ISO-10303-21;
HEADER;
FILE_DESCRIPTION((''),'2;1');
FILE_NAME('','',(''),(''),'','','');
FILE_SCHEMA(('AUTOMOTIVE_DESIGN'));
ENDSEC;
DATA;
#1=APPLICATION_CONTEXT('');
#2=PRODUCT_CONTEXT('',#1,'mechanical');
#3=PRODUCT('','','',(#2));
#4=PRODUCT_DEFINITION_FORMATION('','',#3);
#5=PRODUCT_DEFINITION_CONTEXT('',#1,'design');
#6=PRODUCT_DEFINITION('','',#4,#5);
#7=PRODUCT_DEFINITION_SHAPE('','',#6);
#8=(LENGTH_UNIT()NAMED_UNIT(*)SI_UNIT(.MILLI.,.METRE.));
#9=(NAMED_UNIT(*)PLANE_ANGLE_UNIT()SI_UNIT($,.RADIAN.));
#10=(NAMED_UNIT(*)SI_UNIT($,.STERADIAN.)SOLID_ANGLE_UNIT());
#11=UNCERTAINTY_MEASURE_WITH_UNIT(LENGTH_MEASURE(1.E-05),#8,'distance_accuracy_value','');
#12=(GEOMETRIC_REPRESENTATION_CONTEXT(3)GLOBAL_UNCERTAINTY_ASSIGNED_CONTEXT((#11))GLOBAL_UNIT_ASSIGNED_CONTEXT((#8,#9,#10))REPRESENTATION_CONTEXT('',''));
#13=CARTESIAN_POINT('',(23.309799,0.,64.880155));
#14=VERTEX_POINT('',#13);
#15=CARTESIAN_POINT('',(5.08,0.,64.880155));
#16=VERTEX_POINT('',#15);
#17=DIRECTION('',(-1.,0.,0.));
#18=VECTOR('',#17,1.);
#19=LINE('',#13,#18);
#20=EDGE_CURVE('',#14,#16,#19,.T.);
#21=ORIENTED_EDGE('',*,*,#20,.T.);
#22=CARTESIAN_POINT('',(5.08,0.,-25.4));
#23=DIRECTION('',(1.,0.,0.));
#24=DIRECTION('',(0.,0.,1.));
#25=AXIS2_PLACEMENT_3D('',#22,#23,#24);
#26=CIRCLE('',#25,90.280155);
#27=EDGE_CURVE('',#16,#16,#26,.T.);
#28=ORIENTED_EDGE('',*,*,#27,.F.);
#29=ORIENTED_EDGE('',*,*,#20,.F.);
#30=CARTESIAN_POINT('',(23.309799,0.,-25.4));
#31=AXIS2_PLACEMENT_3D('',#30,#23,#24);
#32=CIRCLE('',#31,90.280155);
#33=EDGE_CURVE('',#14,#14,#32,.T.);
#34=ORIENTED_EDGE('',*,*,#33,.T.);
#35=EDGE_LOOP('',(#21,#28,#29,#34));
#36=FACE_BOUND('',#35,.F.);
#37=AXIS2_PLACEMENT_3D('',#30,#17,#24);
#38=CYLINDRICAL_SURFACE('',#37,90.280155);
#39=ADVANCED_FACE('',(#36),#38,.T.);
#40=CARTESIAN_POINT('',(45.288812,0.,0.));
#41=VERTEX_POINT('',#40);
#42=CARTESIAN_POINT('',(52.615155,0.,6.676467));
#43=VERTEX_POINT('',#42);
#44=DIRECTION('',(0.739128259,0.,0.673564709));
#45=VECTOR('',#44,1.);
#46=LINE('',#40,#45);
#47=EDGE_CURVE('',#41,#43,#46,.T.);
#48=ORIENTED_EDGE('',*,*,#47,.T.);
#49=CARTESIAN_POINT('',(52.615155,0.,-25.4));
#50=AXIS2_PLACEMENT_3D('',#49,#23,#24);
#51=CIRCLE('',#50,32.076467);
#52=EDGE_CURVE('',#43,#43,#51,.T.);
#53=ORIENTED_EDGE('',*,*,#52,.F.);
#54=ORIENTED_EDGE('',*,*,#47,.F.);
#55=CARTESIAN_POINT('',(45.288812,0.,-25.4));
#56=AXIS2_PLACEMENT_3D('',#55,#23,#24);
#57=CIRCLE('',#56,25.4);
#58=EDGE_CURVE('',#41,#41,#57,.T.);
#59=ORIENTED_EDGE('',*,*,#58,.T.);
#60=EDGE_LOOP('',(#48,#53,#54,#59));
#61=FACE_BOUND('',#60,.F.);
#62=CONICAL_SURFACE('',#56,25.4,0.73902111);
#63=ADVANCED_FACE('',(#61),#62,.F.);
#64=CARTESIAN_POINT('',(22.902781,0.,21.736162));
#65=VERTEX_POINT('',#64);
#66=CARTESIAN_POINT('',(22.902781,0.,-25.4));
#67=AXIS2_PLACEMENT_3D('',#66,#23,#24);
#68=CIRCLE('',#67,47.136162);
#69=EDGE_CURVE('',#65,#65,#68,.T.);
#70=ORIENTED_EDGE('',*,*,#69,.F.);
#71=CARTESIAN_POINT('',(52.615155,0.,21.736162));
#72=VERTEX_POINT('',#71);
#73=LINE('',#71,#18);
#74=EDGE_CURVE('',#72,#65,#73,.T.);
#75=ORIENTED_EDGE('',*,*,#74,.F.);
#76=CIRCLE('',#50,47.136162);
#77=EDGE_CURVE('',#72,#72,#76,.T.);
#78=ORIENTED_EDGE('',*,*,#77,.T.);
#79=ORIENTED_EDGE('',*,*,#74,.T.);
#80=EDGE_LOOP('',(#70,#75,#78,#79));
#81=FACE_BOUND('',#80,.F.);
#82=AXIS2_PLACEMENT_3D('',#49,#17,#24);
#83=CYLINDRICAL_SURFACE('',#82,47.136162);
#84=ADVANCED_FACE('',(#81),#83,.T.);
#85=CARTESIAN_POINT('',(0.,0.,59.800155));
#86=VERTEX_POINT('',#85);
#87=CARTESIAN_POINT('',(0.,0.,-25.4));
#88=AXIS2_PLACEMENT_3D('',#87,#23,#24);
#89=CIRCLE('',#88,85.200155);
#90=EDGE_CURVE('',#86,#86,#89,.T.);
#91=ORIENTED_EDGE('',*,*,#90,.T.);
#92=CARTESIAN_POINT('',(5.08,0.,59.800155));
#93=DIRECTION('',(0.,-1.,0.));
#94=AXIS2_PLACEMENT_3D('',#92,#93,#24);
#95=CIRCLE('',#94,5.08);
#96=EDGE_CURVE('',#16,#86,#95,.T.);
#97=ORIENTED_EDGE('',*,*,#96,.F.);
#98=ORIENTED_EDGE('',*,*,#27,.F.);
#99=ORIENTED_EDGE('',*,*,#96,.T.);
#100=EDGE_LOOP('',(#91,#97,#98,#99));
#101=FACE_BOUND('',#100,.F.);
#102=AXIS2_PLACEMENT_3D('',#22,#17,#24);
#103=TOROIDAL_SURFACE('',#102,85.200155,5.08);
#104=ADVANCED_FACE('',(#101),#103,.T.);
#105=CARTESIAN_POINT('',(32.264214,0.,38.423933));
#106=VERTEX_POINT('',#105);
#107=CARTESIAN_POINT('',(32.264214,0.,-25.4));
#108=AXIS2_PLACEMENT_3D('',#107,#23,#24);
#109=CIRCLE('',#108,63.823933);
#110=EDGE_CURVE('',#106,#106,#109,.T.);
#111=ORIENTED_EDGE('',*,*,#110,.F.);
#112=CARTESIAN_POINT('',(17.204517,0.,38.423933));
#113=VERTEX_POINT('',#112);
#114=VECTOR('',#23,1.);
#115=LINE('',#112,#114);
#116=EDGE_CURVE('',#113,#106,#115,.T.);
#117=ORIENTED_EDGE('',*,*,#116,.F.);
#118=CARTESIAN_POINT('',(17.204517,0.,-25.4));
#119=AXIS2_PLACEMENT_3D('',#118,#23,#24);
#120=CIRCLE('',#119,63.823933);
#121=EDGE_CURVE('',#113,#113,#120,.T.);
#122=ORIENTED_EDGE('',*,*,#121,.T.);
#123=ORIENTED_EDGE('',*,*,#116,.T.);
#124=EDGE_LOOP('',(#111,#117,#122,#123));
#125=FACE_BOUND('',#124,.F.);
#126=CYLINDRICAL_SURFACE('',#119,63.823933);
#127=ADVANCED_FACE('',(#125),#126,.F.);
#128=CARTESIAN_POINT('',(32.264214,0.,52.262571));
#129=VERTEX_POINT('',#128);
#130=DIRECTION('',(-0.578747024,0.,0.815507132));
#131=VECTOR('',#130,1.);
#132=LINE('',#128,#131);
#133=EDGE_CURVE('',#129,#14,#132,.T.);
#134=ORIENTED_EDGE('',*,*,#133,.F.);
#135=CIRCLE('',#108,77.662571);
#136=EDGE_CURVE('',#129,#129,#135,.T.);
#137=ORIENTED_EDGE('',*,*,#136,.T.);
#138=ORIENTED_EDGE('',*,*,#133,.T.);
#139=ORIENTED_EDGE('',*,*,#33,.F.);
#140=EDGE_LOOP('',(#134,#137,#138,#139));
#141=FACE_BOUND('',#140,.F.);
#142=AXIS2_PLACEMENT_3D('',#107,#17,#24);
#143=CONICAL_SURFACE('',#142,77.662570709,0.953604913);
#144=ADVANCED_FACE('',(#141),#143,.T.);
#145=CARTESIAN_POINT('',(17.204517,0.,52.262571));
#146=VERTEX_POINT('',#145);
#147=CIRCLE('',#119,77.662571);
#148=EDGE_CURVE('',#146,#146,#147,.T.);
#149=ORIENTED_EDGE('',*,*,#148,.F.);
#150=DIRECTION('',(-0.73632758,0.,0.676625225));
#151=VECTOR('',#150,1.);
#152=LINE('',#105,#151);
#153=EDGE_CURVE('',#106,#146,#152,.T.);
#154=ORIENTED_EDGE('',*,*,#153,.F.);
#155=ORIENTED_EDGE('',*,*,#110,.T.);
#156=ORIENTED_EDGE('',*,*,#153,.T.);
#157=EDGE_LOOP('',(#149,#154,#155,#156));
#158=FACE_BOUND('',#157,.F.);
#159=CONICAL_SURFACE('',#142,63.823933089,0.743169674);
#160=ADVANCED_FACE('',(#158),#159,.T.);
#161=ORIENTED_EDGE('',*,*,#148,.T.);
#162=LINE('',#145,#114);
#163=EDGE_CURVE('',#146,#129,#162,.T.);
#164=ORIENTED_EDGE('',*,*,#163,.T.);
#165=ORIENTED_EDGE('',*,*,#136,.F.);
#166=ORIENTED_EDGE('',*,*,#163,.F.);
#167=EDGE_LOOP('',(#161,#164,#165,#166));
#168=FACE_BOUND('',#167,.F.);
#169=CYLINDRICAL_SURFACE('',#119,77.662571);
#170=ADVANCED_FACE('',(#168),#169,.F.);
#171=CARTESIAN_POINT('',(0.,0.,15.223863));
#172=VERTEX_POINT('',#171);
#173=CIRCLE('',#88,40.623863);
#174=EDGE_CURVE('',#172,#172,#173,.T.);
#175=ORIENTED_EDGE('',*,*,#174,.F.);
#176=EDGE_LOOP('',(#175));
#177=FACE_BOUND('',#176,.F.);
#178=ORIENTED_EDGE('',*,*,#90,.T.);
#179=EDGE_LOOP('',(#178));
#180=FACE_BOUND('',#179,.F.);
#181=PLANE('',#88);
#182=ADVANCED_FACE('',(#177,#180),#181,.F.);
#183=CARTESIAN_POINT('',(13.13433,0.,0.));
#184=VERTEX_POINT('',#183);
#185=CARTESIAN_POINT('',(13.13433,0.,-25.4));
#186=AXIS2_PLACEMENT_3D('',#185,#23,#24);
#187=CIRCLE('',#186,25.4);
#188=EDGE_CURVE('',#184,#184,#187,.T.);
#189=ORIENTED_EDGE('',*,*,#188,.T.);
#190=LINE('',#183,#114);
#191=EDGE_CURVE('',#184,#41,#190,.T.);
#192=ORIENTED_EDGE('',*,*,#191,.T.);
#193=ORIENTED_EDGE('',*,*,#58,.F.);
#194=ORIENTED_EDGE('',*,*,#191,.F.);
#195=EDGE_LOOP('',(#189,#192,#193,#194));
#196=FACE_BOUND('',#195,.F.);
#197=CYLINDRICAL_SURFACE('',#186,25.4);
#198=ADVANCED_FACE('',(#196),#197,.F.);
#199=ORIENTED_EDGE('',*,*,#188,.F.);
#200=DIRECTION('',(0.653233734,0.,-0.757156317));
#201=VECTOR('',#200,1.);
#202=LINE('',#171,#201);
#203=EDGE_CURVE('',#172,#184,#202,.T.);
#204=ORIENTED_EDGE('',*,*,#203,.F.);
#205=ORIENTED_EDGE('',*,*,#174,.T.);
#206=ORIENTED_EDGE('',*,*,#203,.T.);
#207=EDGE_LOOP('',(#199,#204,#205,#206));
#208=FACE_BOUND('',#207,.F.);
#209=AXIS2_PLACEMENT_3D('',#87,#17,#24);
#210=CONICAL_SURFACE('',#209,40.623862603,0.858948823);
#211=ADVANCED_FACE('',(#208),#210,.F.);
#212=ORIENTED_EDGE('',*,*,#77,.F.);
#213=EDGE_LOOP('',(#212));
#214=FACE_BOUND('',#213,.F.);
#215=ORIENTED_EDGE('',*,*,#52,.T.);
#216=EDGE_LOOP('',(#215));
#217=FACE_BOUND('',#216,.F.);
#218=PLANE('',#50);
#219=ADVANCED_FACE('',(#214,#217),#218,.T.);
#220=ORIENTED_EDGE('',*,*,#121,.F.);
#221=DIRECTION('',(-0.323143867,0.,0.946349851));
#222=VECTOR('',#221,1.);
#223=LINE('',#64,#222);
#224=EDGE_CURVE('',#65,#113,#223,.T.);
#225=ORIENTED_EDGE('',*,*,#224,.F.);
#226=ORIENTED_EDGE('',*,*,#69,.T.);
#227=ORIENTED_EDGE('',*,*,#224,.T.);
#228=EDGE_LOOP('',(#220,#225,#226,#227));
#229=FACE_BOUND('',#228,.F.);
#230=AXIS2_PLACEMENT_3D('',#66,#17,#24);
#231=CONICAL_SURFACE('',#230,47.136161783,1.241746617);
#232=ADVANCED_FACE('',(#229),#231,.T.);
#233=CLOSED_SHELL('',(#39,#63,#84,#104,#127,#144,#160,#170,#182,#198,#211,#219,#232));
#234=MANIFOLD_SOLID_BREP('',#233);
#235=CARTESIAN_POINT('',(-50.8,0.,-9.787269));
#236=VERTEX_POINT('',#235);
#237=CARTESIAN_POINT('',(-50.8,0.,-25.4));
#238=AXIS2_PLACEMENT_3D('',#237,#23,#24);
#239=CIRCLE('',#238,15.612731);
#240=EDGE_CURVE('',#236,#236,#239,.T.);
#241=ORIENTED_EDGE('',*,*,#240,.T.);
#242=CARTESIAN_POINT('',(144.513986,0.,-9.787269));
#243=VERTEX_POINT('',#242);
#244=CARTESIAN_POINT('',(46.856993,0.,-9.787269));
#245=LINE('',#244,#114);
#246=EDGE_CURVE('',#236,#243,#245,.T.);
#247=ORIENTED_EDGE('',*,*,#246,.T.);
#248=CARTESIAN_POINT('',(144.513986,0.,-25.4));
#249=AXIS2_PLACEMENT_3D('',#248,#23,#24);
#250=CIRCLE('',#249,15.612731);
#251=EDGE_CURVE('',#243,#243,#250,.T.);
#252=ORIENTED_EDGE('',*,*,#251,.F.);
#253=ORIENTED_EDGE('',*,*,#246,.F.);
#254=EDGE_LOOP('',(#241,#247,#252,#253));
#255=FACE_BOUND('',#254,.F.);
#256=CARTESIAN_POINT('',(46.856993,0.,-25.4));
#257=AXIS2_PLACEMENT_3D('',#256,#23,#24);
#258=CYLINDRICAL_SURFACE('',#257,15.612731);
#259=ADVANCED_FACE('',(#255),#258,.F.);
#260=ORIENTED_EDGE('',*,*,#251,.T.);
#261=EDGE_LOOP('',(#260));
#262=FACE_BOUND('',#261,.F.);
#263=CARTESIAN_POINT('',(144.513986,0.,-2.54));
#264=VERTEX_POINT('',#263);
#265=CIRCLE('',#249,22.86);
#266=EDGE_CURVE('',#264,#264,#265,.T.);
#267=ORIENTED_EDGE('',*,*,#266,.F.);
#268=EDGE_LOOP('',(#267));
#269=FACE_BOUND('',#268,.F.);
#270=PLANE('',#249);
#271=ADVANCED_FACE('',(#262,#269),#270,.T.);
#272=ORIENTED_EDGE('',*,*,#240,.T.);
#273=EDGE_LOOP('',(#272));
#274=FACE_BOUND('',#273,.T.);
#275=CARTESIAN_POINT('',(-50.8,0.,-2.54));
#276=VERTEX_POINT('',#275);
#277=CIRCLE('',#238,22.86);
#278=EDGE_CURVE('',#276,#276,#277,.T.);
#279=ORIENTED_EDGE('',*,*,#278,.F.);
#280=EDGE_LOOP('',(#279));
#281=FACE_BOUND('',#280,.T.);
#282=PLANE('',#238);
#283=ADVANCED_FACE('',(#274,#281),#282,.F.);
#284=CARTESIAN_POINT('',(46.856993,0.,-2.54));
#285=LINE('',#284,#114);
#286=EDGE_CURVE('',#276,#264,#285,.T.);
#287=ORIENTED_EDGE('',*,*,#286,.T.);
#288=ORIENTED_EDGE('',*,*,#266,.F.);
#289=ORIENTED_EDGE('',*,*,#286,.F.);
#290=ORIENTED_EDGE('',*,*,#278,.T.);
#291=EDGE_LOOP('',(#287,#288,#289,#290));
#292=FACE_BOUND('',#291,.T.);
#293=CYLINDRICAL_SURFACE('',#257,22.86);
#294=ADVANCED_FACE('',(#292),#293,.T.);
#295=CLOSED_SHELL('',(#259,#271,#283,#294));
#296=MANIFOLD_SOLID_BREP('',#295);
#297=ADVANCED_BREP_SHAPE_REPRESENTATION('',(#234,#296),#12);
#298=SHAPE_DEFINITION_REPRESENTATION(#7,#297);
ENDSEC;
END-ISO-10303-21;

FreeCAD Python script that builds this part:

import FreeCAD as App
import Part
import Sketcher
Q = App.Units.Quantity


def edges_at(feature, points):
    """Names of the edges that pass closest to the given points."""
    edges = feature.Shape.Edges
    near = lambda p: min(range(len(edges)), key=lambda i: edges[i].distToShape(Part.Vertex(*p))[0])
    return sorted({f"Edge{near(p) + 1}" for p in points})

doc = App.newDocument("Part")
body = doc.addObject("PartDesign::Body", "Body")

sketch1 = body.newObject("Sketcher::SketchObject", "Sketch")
sketch1.AttachmentSupport = (doc.getObject("XZ_Plane"), [""])
sketch1.MapMode = "FlatFace"
sketch1.addGeometry(Part.LineSegment(App.Vector(0, 15.223863, 0), App.Vector(13.13433, 0, 0)), False)
sketch1.addGeometry(Part.LineSegment(App.Vector(13.13433, 0, 0), App.Vector(45.288812, 0, 0)), False)
sketch1.addGeometry(Part.LineSegment(App.Vector(45.288812, 0, 0), App.Vector(52.615155, 6.676467, 0)), False)
sketch1.addGeometry(Part.LineSegment(App.Vector(52.615155, 6.676467, 0), App.Vector(52.615155, 21.736162, 0)), False)
sketch1.addGeometry(Part.LineSegment(App.Vector(52.615155, 21.736162, 0), App.Vector(22.902781, 21.736162, 0)), False)
sketch1.addGeometry(Part.LineSegment(App.Vector(22.902781, 21.736162, 0), App.Vector(17.204517, 38.423933, 0)), False)
sketch1.addGeometry(Part.LineSegment(App.Vector(17.204517, 38.423933, 0), App.Vector(32.264214, 38.423933, 0)), False)
sketch1.addGeometry(Part.LineSegment(App.Vector(32.264214, 38.423933, 0), App.Vector(17.204517, 52.262571, 0)), False)
sketch1.addGeometry(Part.LineSegment(App.Vector(17.204517, 52.262571, 0), App.Vector(32.264214, 52.262571, 0)), False)
sketch1.addGeometry(Part.LineSegment(App.Vector(32.264214, 52.262571, 0), App.Vector(23.309799, 64.880155, 0)), False)
sketch1.addGeometry(Part.LineSegment(App.Vector(23.309799, 64.880155, 0), App.Vector(0, 64.880155, 0)), False)
sketch1.addGeometry(Part.LineSegment(App.Vector(0, 64.880155, 0), App.Vector(0, 15.223863, 0)), False)
sketch1.addGeometry(Part.LineSegment(App.Vector(0, -25.4, 0), App.Vector(52.615155, -25.4, 0)), True)
sketch1.addConstraint(Sketcher.Constraint("Coincident", 0, 2, 1, 1))
sketch1.addConstraint(Sketcher.Constraint("Coincident", 1, 2, 2, 1))
sketch1.addConstraint(Sketcher.Constraint("Coincident", 2, 2, 3, 1))
sketch1.addConstraint(Sketcher.Constraint("Coincident", 3, 2, 4, 1))
sketch1.addConstraint(Sketcher.Constraint("Coincident", 4, 2, 5, 1))
sketch1.addConstraint(Sketcher.Constraint("Coincident", 5, 2, 6, 1))
sketch1.addConstraint(Sketcher.Constraint("Coincident", 6, 2, 7, 1))
sketch1.addConstraint(Sketcher.Constraint("Coincident", 7, 2, 8, 1))
sketch1.addConstraint(Sketcher.Constraint("Coincident", 8, 2, 9, 1))
sketch1.addConstraint(Sketcher.Constraint("Coincident", 9, 2, 10, 1))
sketch1.addConstraint(Sketcher.Constraint("Coincident", 10, 2, 11, 1))
sketch1.addConstraint(Sketcher.Constraint("Coincident", 11, 2, 0, 1))
sketch1.addConstraint(Sketcher.Constraint("Horizontal", 1))
sketch1.addConstraint(Sketcher.Constraint("Vertical", 3))
sketch1.addConstraint(Sketcher.Constraint("Horizontal", 4))
sketch1.addConstraint(Sketcher.Constraint("Horizontal", 6))
sketch1.addConstraint(Sketcher.Constraint("Horizontal", 8))
sketch1.addConstraint(Sketcher.Constraint("Horizontal", 10))
sketch1.addConstraint(Sketcher.Constraint("Vertical", 11))
sketch1.addConstraint(Sketcher.Constraint("Horizontal", 12))
sketch1.addConstraint(Sketcher.Constraint("PointOnObject", 0, 2, -1))
sketch1.addConstraint(Sketcher.Constraint("PointOnObject", 10, 2, -2))
sketch1.addConstraint(Sketcher.Constraint("PointOnObject", 12, 1, -2))
sketch1.addConstraint(Sketcher.Constraint("Vertical", 5, 2, 7, 2))
sketch1.addConstraint(Sketcher.Constraint("Vertical", 6, 2, 8, 2))
sketch1.addConstraint(Sketcher.Constraint("Vertical", 3, 2, 12, 2))
sketch1.addConstraint(Sketcher.Constraint("Equal", 8, 3))
sketch1.addConstraint(Sketcher.Constraint("DistanceY", 12, 1, -1, 1, Q("1 in")))
sketch1.addConstraint(Sketcher.Constraint("DistanceX", 10, 2, 10, 1, 23.309799))
sketch1.addConstraint(Sketcher.Constraint("DistanceX", 6, 2, 1, 2, 13.024598))
sketch1.addConstraint(Sketcher.Constraint("DistanceY", 11, 2, 4, 2, 6.512299))
sketch1.addConstraint(Sketcher.Constraint("Distance", 0, 20.106631))
sketch1.addConstraint(Sketcher.Constraint("Distance", 2, 9.912139))
sketch1.addConstraint(Sketcher.Constraint("Distance", 5, 17.633829))
sketch1.addConstraint(Sketcher.Constraint("Distance", 7, 20.452441))
sketch1.addConstraint(Sketcher.Constraint("Distance", 9, 15.472071))
sketch1.addConstraint(Sketcher.Constraint("DistanceX", 1, 1, 1, 2, 32.154483))
sketch1.addConstraint(Sketcher.Constraint("DistanceX", 4, 2, 4, 1, 29.712373))
sketch1.addConstraint(Sketcher.Constraint("DistanceX", 6, 1, 6, 2, 15.059697))
sketch1.addConstraint(Sketcher.Constraint("DistanceX", 12, 1, 12, 2, 52.615155))
revolution = body.newObject("PartDesign::Revolution", "Revolution")
revolution.Profile = sketch1
revolution.ReferenceAxis = (sketch1, ["Axis0"])
revolution.Angle = 360
doc.recompute()

fillet = body.newObject("PartDesign::Fillet", "Fillet")
fillet.Base = (revolution, edges_at(revolution, [(0, 0, -115.68)]))
fillet.Radius = Q("0.2 in")
body2 = doc.addObject("PartDesign::Body", "Body001")

sketch2 = body2.newObject("Sketcher::SketchObject", "Sketch001")
sketch2.AttachmentSupport = (doc.getObject("XZ_Plane001"), [""])
sketch2.MapMode = "FlatFace"
sketch2.addGeometry(Part.LineSegment(App.Vector(-50.8, -2.54, 0), App.Vector(-50.8, -9.787269, 0)), False)
sketch2.addGeometry(Part.LineSegment(App.Vector(-50.8, -9.787269, 0), App.Vector(144.513986, -9.787269, 0)), False)
sketch2.addGeometry(Part.LineSegment(App.Vector(144.513986, -9.787269, 0), App.Vector(144.513986, -2.54, 0)), False)
sketch2.addGeometry(Part.LineSegment(App.Vector(144.513986, -2.54, 0), App.Vector(-50.8, -2.54, 0)), False)
sketch2.addGeometry(Part.LineSegment(App.Vector(-50.8, -25.4, 0), App.Vector(144.513986, -25.4, 0)), True)
sketch2.addConstraint(Sketcher.Constraint("Coincident", 0, 2, 1, 1))
sketch2.addConstraint(Sketcher.Constraint("Coincident", 1, 2, 2, 1))
sketch2.addConstraint(Sketcher.Constraint("Coincident", 2, 2, 3, 1))
sketch2.addConstraint(Sketcher.Constraint("Coincident", 3, 2, 0, 1))
sketch2.addConstraint(Sketcher.Constraint("Vertical", 0))
sketch2.addConstraint(Sketcher.Constraint("Horizontal", 1))
sketch2.addConstraint(Sketcher.Constraint("Vertical", 2))
sketch2.addConstraint(Sketcher.Constraint("Horizontal", 3))
sketch2.addConstraint(Sketcher.Constraint("Horizontal", 4))
sketch2.addConstraint(Sketcher.Constraint("Vertical", 3, 2, 4, 1))
sketch2.addConstraint(Sketcher.Constraint("Vertical", 2, 2, 4, 2))
sketch2.addConstraint(Sketcher.Constraint("DistanceX", 0, 2, -1, 1, Q("2 in")))
sketch2.addConstraint(Sketcher.Constraint("DistanceY", 4, 1, -1, 1, Q("1 in")))
sketch2.addConstraint(Sketcher.Constraint("DistanceY", 2, 2, -1, 1, Q("0.1 in")))
sketch2.addConstraint(Sketcher.Constraint("DistanceY", 0, 2, 0, 1, 7.247269))
sketch2.addConstraint(Sketcher.Constraint("DistanceX", 1, 1, 1, 2, 195.313986))
revolution2 = body2.newObject("PartDesign::Revolution", "Revolution001")
revolution2.Profile = sketch2
revolution2.ReferenceAxis = (sketch2, ["Axis0"])
revolution2.Angle = 360

doc.recompute()
